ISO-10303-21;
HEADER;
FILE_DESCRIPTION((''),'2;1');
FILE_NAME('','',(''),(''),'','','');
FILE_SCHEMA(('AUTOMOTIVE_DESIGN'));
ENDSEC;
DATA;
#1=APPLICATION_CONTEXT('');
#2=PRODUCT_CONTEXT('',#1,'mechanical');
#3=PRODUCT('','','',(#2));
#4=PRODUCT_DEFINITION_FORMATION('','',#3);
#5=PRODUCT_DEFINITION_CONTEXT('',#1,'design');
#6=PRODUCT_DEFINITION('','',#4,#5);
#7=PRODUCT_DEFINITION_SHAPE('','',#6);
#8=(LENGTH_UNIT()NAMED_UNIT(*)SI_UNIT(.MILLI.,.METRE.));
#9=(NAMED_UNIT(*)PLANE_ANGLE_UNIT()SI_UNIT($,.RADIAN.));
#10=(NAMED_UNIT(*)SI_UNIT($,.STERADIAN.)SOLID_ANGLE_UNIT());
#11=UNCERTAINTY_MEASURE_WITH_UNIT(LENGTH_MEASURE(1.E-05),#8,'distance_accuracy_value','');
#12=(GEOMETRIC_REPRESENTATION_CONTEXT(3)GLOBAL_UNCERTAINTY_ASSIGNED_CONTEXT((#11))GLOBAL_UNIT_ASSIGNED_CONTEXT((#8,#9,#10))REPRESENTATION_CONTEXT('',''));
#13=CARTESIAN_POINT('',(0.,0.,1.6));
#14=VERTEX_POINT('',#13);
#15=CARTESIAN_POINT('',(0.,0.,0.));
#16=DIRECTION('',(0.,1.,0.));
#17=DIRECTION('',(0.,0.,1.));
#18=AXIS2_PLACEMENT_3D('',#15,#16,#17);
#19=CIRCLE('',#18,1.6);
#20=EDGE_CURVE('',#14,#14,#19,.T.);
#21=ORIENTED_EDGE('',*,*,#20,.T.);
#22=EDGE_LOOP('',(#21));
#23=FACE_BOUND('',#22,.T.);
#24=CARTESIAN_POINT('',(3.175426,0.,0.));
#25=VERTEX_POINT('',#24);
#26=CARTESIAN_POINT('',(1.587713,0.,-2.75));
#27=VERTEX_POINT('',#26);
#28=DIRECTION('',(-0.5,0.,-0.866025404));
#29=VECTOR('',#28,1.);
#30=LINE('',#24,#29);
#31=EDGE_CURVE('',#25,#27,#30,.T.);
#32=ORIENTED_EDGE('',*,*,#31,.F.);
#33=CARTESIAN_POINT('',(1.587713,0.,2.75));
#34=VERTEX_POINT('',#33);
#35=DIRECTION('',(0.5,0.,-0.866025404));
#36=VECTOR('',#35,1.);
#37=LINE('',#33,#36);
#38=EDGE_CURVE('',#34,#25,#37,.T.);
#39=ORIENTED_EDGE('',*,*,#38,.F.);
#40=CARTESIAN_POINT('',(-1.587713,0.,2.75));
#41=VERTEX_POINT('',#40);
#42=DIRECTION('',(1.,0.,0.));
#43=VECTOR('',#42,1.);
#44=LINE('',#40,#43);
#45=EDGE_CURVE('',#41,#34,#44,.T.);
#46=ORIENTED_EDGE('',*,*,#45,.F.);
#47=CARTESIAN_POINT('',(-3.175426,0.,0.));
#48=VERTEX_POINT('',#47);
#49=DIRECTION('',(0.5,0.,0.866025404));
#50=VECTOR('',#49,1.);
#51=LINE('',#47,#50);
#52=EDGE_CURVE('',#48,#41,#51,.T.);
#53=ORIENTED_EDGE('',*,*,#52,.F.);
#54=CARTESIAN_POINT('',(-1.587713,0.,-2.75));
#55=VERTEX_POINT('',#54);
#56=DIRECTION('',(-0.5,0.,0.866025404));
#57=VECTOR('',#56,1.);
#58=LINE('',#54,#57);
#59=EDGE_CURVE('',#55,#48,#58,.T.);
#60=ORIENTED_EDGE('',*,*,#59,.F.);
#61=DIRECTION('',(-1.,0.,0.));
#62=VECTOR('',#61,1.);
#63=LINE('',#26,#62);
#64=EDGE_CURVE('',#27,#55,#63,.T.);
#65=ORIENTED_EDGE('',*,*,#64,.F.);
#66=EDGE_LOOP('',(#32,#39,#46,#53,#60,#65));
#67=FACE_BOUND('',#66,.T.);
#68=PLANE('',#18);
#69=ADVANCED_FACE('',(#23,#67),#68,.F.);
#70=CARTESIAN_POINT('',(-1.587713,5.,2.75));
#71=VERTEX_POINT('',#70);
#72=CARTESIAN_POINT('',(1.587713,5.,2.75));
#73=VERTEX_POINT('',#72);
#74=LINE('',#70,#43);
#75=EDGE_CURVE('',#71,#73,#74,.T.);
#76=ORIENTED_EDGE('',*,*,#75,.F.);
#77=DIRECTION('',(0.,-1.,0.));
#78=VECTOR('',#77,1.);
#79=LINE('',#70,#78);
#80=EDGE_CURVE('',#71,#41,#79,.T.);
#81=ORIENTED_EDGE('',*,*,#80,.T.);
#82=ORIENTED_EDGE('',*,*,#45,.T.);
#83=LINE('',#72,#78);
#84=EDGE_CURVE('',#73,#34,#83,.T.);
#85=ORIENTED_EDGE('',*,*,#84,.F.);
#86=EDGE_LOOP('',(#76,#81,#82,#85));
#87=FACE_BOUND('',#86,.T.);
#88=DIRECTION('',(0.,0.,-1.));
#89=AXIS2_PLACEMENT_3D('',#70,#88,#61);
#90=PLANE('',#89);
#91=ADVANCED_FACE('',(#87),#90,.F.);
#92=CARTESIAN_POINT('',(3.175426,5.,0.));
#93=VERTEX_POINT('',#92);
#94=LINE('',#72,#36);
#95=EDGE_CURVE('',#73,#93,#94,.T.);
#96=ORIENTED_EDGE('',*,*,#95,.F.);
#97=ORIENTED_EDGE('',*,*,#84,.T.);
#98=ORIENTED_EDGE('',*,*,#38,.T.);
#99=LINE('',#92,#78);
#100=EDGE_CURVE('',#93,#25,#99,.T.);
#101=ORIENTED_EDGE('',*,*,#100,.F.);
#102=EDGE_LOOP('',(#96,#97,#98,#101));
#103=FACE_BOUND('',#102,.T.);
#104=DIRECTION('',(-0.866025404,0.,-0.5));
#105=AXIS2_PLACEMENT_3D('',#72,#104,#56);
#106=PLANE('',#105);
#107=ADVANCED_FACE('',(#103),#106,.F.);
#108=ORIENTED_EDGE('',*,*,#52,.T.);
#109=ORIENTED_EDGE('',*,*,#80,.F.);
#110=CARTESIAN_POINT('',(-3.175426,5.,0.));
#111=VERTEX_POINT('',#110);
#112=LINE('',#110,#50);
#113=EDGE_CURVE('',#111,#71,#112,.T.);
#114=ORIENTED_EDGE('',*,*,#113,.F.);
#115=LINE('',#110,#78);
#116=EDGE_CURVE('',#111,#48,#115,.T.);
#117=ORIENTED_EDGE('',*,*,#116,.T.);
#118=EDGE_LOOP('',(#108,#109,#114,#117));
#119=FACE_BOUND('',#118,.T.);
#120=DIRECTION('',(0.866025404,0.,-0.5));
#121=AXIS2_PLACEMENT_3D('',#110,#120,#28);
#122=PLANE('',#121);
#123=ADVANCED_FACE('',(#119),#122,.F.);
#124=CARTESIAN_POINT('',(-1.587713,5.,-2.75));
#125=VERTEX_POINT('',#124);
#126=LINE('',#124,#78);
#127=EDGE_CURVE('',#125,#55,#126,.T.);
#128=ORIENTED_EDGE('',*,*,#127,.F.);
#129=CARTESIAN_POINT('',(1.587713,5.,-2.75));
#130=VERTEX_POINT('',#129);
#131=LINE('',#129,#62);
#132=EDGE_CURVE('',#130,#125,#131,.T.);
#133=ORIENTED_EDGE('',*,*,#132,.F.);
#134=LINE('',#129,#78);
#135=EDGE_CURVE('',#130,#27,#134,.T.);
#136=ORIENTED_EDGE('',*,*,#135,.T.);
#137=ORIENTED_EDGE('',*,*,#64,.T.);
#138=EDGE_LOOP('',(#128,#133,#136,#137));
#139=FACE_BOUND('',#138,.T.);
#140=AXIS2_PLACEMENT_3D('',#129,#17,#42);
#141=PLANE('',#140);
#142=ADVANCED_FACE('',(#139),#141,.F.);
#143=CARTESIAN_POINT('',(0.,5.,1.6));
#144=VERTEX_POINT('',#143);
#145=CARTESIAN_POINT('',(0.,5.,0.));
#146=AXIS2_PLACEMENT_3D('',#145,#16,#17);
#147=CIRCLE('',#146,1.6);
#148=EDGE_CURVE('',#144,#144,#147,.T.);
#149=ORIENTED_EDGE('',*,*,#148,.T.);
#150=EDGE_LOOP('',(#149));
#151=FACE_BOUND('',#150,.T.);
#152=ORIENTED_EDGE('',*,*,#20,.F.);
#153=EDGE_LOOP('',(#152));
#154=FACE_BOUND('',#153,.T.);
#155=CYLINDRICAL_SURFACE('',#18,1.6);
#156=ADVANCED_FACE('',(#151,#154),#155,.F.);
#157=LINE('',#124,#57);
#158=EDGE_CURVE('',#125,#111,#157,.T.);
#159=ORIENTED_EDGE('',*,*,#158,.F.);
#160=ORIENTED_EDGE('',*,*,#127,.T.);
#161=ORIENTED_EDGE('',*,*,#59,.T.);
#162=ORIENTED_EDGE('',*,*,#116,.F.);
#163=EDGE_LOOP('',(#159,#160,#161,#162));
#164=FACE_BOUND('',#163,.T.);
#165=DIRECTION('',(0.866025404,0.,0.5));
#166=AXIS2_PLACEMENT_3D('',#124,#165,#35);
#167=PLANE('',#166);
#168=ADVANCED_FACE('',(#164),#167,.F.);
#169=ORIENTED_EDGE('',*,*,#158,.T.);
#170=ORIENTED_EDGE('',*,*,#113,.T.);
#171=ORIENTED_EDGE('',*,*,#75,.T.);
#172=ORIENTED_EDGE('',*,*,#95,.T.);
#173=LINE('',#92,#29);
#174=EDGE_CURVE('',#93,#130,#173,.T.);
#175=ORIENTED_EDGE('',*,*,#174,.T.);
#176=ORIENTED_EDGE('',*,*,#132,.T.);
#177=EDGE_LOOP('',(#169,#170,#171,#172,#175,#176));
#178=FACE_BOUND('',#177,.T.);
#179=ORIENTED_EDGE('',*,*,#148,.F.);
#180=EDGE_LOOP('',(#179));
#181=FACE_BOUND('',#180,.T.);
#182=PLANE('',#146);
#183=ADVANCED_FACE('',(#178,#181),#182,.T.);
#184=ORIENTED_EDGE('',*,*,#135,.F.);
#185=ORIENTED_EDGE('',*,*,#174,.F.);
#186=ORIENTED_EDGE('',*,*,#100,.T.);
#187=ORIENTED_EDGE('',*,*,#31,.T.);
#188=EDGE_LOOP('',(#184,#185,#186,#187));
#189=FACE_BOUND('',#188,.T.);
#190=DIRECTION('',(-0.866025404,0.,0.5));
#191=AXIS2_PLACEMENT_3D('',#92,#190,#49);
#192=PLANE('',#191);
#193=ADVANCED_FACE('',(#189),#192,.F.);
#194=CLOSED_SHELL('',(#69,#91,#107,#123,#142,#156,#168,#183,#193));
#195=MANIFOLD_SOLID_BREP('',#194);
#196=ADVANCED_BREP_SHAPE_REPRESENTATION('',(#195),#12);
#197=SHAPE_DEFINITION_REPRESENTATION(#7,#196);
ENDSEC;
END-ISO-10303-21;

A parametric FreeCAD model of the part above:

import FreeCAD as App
import Part
import Sketcher
from FreeCAD import Vector
Q = App.Units.Quantity

doc = App.newDocument("Part")
params = doc.addObject("Spreadsheet::Sheet", "Params")
for row, (alias, value) in enumerate([
    ("pad1_length", "5 mm"),
    ("sketch2_diameter", "3.2 mm"),
], start=1):
    params.set(f"A{row}", alias)
    params.set(f"B{row}", "=" + value)
    params.setAlias(f"B{row}", alias)

body = doc.addObject("PartDesign::Body", "Body")

# Sketch on XZ plane
sketch1 = body.newObject("Sketcher::SketchObject", "Sketch")
sketch1.AttachmentSupport = (doc.getObject("XZ_Plane"), [""])
sketch1.MapMode = "FlatFace"
sketch1.addGeometry([
    Part.LineSegment(Vector(3.2, 0, 0), Vector(1.6, -2.8, 0)),  # 0
    Part.LineSegment(Vector(1.6, -2.8, 0), Vector(-1.6, -2.8, 0)),  # 1
    Part.LineSegment(Vector(-1.6, -2.8, 0), Vector(-3.2, 0, 0)),  # 2
    Part.LineSegment(Vector(-3.2, 0, 0), Vector(-1.6, 2.8, 0)),  # 3
    Part.LineSegment(Vector(-1.6, 2.8, 0), Vector(1.6, 2.8, 0)),  # 4
    Part.LineSegment(Vector(1.6, 2.8, 0), Vector(3.2, 0, 0)),  # 5
], False)
sketch1.addConstraint([
    Sketcher.Constraint("Coincident", 0, 2, 1, 1),
    Sketcher.Constraint("Coincident", 1, 2, 2, 1),
    Sketcher.Constraint("Coincident", 2, 2, 3, 1),
    Sketcher.Constraint("Coincident", 3, 2, 4, 1),
    Sketcher.Constraint("Coincident", 4, 2, 5, 1),
    Sketcher.Constraint("Coincident", 5, 2, 0, 1),
    Sketcher.Constraint("Horizontal", 1),
    Sketcher.Constraint("Horizontal", 4),
    Sketcher.Constraint("Symmetric", 0, 2, 3, 2, -1, 1),
    Sketcher.Constraint("Symmetric", 2, 2, 5, 2, -1, 1),
    Sketcher.Constraint("PointOnObject", 2, 2, -1),
    Sketcher.Constraint("Parallel", 2, 5),
    Sketcher.Constraint("Vertical", 1, 2, 3, 2),
    Sketcher.Constraint("Angle", 0, Q("-120 deg")),
    Sketcher.Constraint("DistanceY", 1, 2, 3, 2, Q("5.5 mm")),
    Sketcher.Constraint("DistanceX", 1, 2, 1, 1, Q("3.175426 mm")),
])
pad1 = body.newObject("PartDesign::Pad", "Pad")
pad1.Profile = sketch1
pad1.setExpression("Length", "Params.pad1_length")
pad1.Reversed = True

# Sketch on XZ plane
sketch2 = body.newObject("Sketcher::SketchObject", "Sketch001")
sketch2.AttachmentSupport = (doc.getObject("XZ_Plane"), [""])
sketch2.MapMode = "FlatFace"
sketch2.AttachmentOffset = App.Placement(Vector(0, 0, -5), App.Rotation())
sketch2.addGeometry(Part.Circle(Vector(0, 0, 0), Vector(0, 0, 1), 1.6), False)
sketch2.addConstraint([
    Sketcher.Constraint("Coincident", 0, 3, -1, 1),
    Sketcher.Constraint("Diameter", 0, Q("3.2 mm")),
])
sketch2.setExpression("Constraints[1]", "Params.sketch2_diameter")
pocket1 = body.newObject("PartDesign::Pocket", "Pocket")
pocket1.Profile = sketch2
pocket1.Type = "ThroughAll"
pocket1.Reversed = True

doc.recompute()
